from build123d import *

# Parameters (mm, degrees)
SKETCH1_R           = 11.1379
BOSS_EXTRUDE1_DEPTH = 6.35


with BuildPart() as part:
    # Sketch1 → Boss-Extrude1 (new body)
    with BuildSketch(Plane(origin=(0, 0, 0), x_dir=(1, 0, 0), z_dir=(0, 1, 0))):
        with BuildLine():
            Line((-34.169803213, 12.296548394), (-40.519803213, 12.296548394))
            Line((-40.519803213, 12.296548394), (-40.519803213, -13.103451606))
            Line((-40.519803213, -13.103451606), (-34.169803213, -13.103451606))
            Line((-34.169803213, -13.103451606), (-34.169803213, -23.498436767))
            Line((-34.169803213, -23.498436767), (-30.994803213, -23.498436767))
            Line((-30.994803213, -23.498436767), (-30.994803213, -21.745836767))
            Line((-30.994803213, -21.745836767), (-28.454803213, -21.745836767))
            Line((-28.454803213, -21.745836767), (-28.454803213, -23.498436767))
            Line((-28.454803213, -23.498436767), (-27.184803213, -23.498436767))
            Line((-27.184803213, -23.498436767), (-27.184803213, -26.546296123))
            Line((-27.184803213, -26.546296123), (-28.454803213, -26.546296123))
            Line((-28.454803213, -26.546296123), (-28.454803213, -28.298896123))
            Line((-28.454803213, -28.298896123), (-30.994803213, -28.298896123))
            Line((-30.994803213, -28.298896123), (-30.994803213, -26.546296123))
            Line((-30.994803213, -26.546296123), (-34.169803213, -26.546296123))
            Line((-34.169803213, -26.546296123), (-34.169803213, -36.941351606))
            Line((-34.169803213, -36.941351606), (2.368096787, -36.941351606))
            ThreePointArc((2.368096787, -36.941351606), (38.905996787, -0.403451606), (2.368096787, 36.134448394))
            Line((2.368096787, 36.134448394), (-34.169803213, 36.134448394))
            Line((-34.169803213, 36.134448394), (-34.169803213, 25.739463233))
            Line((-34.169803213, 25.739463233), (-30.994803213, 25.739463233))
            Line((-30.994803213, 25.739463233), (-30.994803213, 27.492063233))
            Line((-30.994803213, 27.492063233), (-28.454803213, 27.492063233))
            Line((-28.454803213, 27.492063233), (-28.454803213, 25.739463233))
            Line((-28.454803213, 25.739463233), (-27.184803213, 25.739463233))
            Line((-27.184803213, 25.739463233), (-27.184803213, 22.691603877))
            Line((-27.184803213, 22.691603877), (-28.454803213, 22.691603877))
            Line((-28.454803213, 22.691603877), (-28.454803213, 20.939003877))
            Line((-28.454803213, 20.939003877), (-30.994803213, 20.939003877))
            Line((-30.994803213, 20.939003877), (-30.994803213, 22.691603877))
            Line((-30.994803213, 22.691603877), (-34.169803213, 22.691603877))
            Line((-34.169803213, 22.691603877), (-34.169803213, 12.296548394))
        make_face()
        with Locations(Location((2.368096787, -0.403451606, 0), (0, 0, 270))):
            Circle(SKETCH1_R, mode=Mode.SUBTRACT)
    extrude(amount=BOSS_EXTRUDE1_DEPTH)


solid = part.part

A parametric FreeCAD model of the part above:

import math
import FreeCAD as App
import Part
import Sketcher
from FreeCAD import Vector
Q = App.Units.Quantity

doc = App.newDocument("Part")
body = doc.addObject("PartDesign::Body", "Body")

sketch1 = doc.addObject("Sketcher::SketchObject", "Sketch")
body.addObject(sketch1)
sketch1.AttachmentSupport = (doc.XZ_Plane, [""])
sketch1.MapMode = "FlatFace"
sketch1.addGeometry(Part.LineSegment(Vector(-34.169803, -12.296548, 0), Vector(-40.519803, -12.296548, 0)), False)
sketch1.addGeometry(Part.LineSegment(Vector(-40.519803, -12.296548, 0), Vector(-40.519803, 13.103452, 0)), False)
sketch1.addGeometry(Part.LineSegment(Vector(-40.519803, 13.103452, 0), Vector(-34.169803, 13.103452, 0)), False)
sketch1.addGeometry(Part.LineSegment(Vector(-34.169803, 13.103452, 0), Vector(-34.169803, 23.498437, 0)), False)
sketch1.addGeometry(Part.LineSegment(Vector(-34.169803, 23.498437, 0), Vector(-30.994803, 23.498437, 0)), False)
sketch1.addGeometry(Part.LineSegment(Vector(-30.994803, 23.498437, 0), Vector(-30.994803, 21.745837, 0)), False)
sketch1.addGeometry(Part.LineSegment(Vector(-30.994803, 21.745837, 0), Vector(-28.454803, 21.745837, 0)), False)
sketch1.addGeometry(Part.LineSegment(Vector(-28.454803, 21.745837, 0), Vector(-28.454803, 23.498437, 0)), False)
sketch1.addGeometry(Part.LineSegment(Vector(-28.454803, 23.498437, 0), Vector(-27.184803, 23.498437, 0)), False)
sketch1.addGeometry(Part.LineSegment(Vector(-27.184803, 23.498437, 0), Vector(-27.184803, 26.546296, 0)), False)
sketch1.addGeometry(Part.LineSegment(Vector(-27.184803, 26.546296, 0), Vector(-28.454803, 26.546296, 0)), False)
sketch1.addGeometry(Part.LineSegment(Vector(-28.454803, 26.546296, 0), Vector(-28.454803, 28.298896, 0)), False)
sketch1.addGeometry(Part.LineSegment(Vector(-28.454803, 28.298896, 0), Vector(-30.994803, 28.298896, 0)), False)
sketch1.addGeometry(Part.LineSegment(Vector(-30.994803, 28.298896, 0), Vector(-30.994803, 26.546296, 0)), False)
sketch1.addGeometry(Part.LineSegment(Vector(-30.994803, 26.546296, 0), Vector(-34.169803, 26.546296, 0)), False)
sketch1.addGeometry(Part.LineSegment(Vector(-34.169803, 26.546296, 0), Vector(-34.169803, 36.941352, 0)), False)
sketch1.addGeometry(Part.LineSegment(Vector(-34.169803, 36.941352, 0), Vector(2.368097, 36.941352, 0)), False)
sketch1.addGeometry(Part.ArcOfCircle(Part.Circle(Vector(2.368097, 0.403452, 0), Vector(0, 0, 1), 36.5379), math.radians(-90), math.radians(90)), False)
sketch1.addGeometry(Part.LineSegment(Vector(2.368097, -36.134448, 0), Vector(-34.169803, -36.134448, 0)), False)
sketch1.addGeometry(Part.LineSegment(Vector(-34.169803, -36.134448, 0), Vector(-34.169803, -25.739463, 0)), False)
sketch1.addGeometry(Part.LineSegment(Vector(-34.169803, -25.739463, 0), Vector(-30.994803, -25.739463, 0)), False)
sketch1.addGeometry(Part.LineSegment(Vector(-30.994803, -25.739463, 0), Vector(-30.994803, -27.492063, 0)), False)
sketch1.addGeometry(Part.LineSegment(Vector(-30.994803, -27.492063, 0), Vector(-28.454803, -27.492063, 0)), False)
sketch1.addGeometry(Part.LineSegment(Vector(-28.454803, -27.492063, 0), Vector(-28.454803, -25.739463, 0)), False)
sketch1.addGeometry(Part.LineSegment(Vector(-28.454803, -25.739463, 0), Vector(-27.184803, -25.739463, 0)), False)
sketch1.addGeometry(Part.LineSegment(Vector(-27.184803, -25.739463, 0), Vector(-27.184803, -22.691604, 0)), False)
sketch1.addGeometry(Part.LineSegment(Vector(-27.184803, -22.691604, 0), Vector(-28.454803, -22.691604, 0)), False)
sketch1.addGeometry(Part.LineSegment(Vector(-28.454803, -22.691604, 0), Vector(-28.454803, -20.939004, 0)), False)
sketch1.addGeometry(Part.LineSegment(Vector(-28.454803, -20.939004, 0), Vector(-30.994803, -20.939004, 0)), False)
sketch1.addGeometry(Part.LineSegment(Vector(-30.994803, -20.939004, 0), Vector(-30.994803, -22.691604, 0)), False)
sketch1.addGeometry(Part.LineSegment(Vector(-30.994803, -22.691604, 0), Vector(-34.169803, -22.691604, 0)), False)
sketch1.addGeometry(Part.LineSegment(Vector(-34.169803, -22.691604, 0), Vector(-34.169803, -12.296548, 0)), False)
sketch1.addGeometry(Part.Circle(Vector(2.368097, 0.403452, 0), Vector(0, 0, 1), 11.1379), False)
sketch1.addConstraint(Sketcher.Constraint("Coincident", 0, 2, 1, 1))
sketch1.addConstraint(Sketcher.Constraint("Coincident", 1, 2, 2, 1))
sketch1.addConstraint(Sketcher.Constraint("Coincident", 2, 2, 3, 1))
sketch1.addConstraint(Sketcher.Constraint("Coincident", 3, 2, 4, 1))
sketch1.addConstraint(Sketcher.Constraint("Coincident", 4, 2, 5, 1))
sketch1.addConstraint(Sketcher.Constraint("Coincident", 5, 2, 6, 1))
sketch1.addConstraint(Sketcher.Constraint("Coincident", 6, 2, 7, 1))
sketch1.addConstraint(Sketcher.Constraint("Coincident", 7, 2, 8, 1))
sketch1.addConstraint(Sketcher.Constraint("Coincident", 8, 2, 9, 1))
sketch1.addConstraint(Sketcher.Constraint("Coincident", 9, 2, 10, 1))
sketch1.addConstraint(Sketcher.Constraint("Coincident", 10, 2, 11, 1))
sketch1.addConstraint(Sketcher.Constraint("Coincident", 11, 2, 12, 1))
sketch1.addConstraint(Sketcher.Constraint("Coincident", 12, 2, 13, 1))
sketch1.addConstraint(Sketcher.Constraint("Coincident", 13, 2, 14, 1))
sketch1.addConstraint(Sketcher.Constraint("Coincident", 14, 2, 15, 1))
sketch1.addConstraint(Sketcher.Constraint("Coincident", 15, 2, 16, 1))
sketch1.addConstraint(Sketcher.Constraint("Tangent", 16, 2, 17, 2))
sketch1.addConstraint(Sketcher.Constraint("Tangent", 17, 1, 18, 1))
sketch1.addConstraint(Sketcher.Constraint("Coincident", 18, 2, 19, 1))
sketch1.addConstraint(Sketcher.Constraint("Coincident", 19, 2, 20, 1))
sketch1.addConstraint(Sketcher.Constraint("Coincident", 20, 2, 21, 1))
sketch1.addConstraint(Sketcher.Constraint("Coincident", 21, 2, 22, 1))
sketch1.addConstraint(Sketcher.Constraint("Coincident", 22, 2, 23, 1))
sketch1.addConstraint(Sketcher.Constraint("Coincident", 23, 2, 24, 1))
sketch1.addConstraint(Sketcher.Constraint("Coincident", 24, 2, 25, 1))
sketch1.addConstraint(Sketcher.Constraint("Coincident", 25, 2, 26, 1))
sketch1.addConstraint(Sketcher.Constraint("Coincident", 26, 2, 27, 1))
sketch1.addConstraint(Sketcher.Constraint("Coincident", 27, 2, 28, 1))
sketch1.addConstraint(Sketcher.Constraint("Coincident", 28, 2, 29, 1))
sketch1.addConstraint(Sketcher.Constraint("Coincident", 29, 2, 30, 1))
sketch1.addConstraint(Sketcher.Constraint("Coincident", 30, 2, 31, 1))
sketch1.addConstraint(Sketcher.Constraint("Coincident", 31, 2, 0, 1))
sketch1.addConstraint(Sketcher.Constraint("Horizontal", 0))
sketch1.addConstraint(Sketcher.Constraint("Vertical", 1))
sketch1.addConstraint(Sketcher.Constraint("Horizontal", 2))
sketch1.addConstraint(Sketcher.Constraint("Vertical", 3))
sketch1.addConstraint(Sketcher.Constraint("Horizontal", 4))
sketch1.addConstraint(Sketcher.Constraint("Vertical", 5))
sketch1.addConstraint(Sketcher.Constraint("Horizontal", 6))
sketch1.addConstraint(Sketcher.Constraint("Vertical", 7))
sketch1.addConstraint(Sketcher.Constraint("Horizontal", 8))
sketch1.addConstraint(Sketcher.Constraint("Vertical", 9))
sketch1.addConstraint(Sketcher.Constraint("Horizontal", 10))
sketch1.addConstraint(Sketcher.Constraint("Vertical", 11))
sketch1.addConstraint(Sketcher.Constraint("Horizontal", 12))
sketch1.addConstraint(Sketcher.Constraint("Vertical", 13))
sketch1.addConstraint(Sketcher.Constraint("Horizontal", 14))
sketch1.addConstraint(Sketcher.Constraint("Vertical", 15))
sketch1.addConstraint(Sketcher.Constraint("Horizontal", 16))
sketch1.addConstraint(Sketcher.Constraint("Horizontal", 18))
sketch1.addConstraint(Sketcher.Constraint("Vertical", 19))
sketch1.addConstraint(Sketcher.Constraint("Horizontal", 20))
sketch1.addConstraint(Sketcher.Constraint("Vertical", 21))
sketch1.addConstraint(Sketcher.Constraint("Horizontal", 22))
sketch1.addConstraint(Sketcher.Constraint("Vertical", 23))
sketch1.addConstraint(Sketcher.Constraint("Horizontal", 24))
sketch1.addConstraint(Sketcher.Constraint("Vertical", 25))
sketch1.addConstraint(Sketcher.Constraint("Horizontal", 26))
sketch1.addConstraint(Sketcher.Constraint("Vertical", 27))
sketch1.addConstraint(Sketcher.Constraint("Horizontal", 28))
sketch1.addConstraint(Sketcher.Constraint("Vertical", 29))
sketch1.addConstraint(Sketcher.Constraint("Horizontal", 30))
sketch1.addConstraint(Sketcher.Constraint("Vertical", 31))
sketch1.addConstraint(Sketcher.Constraint("Coincident", 32, 3, 17, 3))
sketch1.addConstraint(Sketcher.Constraint("Horizontal", 4, 2, 7, 2))
sketch1.addConstraint(Sketcher.Constraint("Horizontal", 10, 2, 13, 2))
sketch1.addConstraint(Sketcher.Constraint("Horizontal", 20, 2, 23, 2))
sketch1.addConstraint(Sketcher.Constraint("Horizontal", 26, 2, 29, 2))
sketch1.addConstraint(Sketcher.Constraint("Vertical", 7, 2, 10, 2))
sketch1.addConstraint(Sketcher.Constraint("Vertical", 5, 2, 12, 2))
sketch1.addConstraint(Sketcher.Constraint("Vertical", 3, 2, 14, 2))
sketch1.addConstraint(Sketcher.Constraint("Vertical", 15, 2, 18, 2))
sketch1.addConstraint(Sketcher.Constraint("Vertical", 13, 2, 20, 2))
sketch1.addConstraint(Sketcher.Constraint("Vertical", 11, 2, 22, 2))
sketch1.addConstraint(Sketcher.Constraint("Vertical", 9, 2, 24, 2))
sketch1.addConstraint(Sketcher.Constraint("Vertical", 23, 2, 26, 2))
sketch1.addConstraint(Sketcher.Constraint("Vertical", 21, 2, 28, 2))
sketch1.addConstraint(Sketcher.Constraint("Vertical", 19, 2, 30, 2))
sketch1.addConstraint(Sketcher.Constraint("Equal", 7, 11))
sketch1.addConstraint(Sketcher.Constraint("Equal", 3, 19))
sketch1.addConstraint(Sketcher.Constraint("Equal", 13, 21))
sketch1.addConstraint(Sketcher.Constraint("Equal", 9, 25))
sketch1.addConstraint(Sketcher.Constraint("Equal", 23, 27))
sketch1.addConstraint(Sketcher.Constraint("Equal", 15, 31))
sketch1.addConstraint(Sketcher.Constraint("DistanceY", 1, 1, 1, 2, Q("1 in")))
sketch1.addConstraint(Sketcher.Constraint("Diameter", 32, Q("0.877 in")))
sketch1.addConstraint(Sketcher.Constraint("DistanceX", 6, 1, 6, 2, Q("0.1 in")))
sketch1.addConstraint(Sketcher.Constraint("DistanceX", 0, 2, 0, 1, Q("0.25 in")))
sketch1.addConstraint(Sketcher.Constraint("DistanceX", 8, 1, 8, 2, Q("0.05 in")))
sketch1.addConstraint(Sketcher.Constraint("Radius", 17, Q("1.4385 in")))
sketch1.addConstraint(Sketcher.Constraint("DistanceX", 4, 1, 4, 2, Q("0.125 in")))
sketch1.addConstraint(Sketcher.Constraint("DistanceY", 5, 2, 5, 1, Q("0.069 in")))
sketch1.addConstraint(Sketcher.Constraint("DistanceX", 16, 1, 16, 2, Q("1.4385 in")))
sketch1.addConstraint(Sketcher.Constraint("DistanceY", 9, 1, 9, 2, 3.047859))
sketch1.addConstraint(Sketcher.Constraint("DistanceY", 3, 1, 3, 2, 10.394985))
sketch1.addConstraint(Sketcher.Constraint("DistanceY", -1, 1, 17, 3, 0.403452))
sketch1.addConstraint(Sketcher.Constraint("DistanceX", -1, 1, 17, 3, 2.368097))
pad1 = doc.addObject("PartDesign::Pad", "Pad")
body.addObject(pad1)
pad1.Profile = sketch1
pad1.Length = Q("0.25 in")
pad1.Reversed = True

doc.recompute()
